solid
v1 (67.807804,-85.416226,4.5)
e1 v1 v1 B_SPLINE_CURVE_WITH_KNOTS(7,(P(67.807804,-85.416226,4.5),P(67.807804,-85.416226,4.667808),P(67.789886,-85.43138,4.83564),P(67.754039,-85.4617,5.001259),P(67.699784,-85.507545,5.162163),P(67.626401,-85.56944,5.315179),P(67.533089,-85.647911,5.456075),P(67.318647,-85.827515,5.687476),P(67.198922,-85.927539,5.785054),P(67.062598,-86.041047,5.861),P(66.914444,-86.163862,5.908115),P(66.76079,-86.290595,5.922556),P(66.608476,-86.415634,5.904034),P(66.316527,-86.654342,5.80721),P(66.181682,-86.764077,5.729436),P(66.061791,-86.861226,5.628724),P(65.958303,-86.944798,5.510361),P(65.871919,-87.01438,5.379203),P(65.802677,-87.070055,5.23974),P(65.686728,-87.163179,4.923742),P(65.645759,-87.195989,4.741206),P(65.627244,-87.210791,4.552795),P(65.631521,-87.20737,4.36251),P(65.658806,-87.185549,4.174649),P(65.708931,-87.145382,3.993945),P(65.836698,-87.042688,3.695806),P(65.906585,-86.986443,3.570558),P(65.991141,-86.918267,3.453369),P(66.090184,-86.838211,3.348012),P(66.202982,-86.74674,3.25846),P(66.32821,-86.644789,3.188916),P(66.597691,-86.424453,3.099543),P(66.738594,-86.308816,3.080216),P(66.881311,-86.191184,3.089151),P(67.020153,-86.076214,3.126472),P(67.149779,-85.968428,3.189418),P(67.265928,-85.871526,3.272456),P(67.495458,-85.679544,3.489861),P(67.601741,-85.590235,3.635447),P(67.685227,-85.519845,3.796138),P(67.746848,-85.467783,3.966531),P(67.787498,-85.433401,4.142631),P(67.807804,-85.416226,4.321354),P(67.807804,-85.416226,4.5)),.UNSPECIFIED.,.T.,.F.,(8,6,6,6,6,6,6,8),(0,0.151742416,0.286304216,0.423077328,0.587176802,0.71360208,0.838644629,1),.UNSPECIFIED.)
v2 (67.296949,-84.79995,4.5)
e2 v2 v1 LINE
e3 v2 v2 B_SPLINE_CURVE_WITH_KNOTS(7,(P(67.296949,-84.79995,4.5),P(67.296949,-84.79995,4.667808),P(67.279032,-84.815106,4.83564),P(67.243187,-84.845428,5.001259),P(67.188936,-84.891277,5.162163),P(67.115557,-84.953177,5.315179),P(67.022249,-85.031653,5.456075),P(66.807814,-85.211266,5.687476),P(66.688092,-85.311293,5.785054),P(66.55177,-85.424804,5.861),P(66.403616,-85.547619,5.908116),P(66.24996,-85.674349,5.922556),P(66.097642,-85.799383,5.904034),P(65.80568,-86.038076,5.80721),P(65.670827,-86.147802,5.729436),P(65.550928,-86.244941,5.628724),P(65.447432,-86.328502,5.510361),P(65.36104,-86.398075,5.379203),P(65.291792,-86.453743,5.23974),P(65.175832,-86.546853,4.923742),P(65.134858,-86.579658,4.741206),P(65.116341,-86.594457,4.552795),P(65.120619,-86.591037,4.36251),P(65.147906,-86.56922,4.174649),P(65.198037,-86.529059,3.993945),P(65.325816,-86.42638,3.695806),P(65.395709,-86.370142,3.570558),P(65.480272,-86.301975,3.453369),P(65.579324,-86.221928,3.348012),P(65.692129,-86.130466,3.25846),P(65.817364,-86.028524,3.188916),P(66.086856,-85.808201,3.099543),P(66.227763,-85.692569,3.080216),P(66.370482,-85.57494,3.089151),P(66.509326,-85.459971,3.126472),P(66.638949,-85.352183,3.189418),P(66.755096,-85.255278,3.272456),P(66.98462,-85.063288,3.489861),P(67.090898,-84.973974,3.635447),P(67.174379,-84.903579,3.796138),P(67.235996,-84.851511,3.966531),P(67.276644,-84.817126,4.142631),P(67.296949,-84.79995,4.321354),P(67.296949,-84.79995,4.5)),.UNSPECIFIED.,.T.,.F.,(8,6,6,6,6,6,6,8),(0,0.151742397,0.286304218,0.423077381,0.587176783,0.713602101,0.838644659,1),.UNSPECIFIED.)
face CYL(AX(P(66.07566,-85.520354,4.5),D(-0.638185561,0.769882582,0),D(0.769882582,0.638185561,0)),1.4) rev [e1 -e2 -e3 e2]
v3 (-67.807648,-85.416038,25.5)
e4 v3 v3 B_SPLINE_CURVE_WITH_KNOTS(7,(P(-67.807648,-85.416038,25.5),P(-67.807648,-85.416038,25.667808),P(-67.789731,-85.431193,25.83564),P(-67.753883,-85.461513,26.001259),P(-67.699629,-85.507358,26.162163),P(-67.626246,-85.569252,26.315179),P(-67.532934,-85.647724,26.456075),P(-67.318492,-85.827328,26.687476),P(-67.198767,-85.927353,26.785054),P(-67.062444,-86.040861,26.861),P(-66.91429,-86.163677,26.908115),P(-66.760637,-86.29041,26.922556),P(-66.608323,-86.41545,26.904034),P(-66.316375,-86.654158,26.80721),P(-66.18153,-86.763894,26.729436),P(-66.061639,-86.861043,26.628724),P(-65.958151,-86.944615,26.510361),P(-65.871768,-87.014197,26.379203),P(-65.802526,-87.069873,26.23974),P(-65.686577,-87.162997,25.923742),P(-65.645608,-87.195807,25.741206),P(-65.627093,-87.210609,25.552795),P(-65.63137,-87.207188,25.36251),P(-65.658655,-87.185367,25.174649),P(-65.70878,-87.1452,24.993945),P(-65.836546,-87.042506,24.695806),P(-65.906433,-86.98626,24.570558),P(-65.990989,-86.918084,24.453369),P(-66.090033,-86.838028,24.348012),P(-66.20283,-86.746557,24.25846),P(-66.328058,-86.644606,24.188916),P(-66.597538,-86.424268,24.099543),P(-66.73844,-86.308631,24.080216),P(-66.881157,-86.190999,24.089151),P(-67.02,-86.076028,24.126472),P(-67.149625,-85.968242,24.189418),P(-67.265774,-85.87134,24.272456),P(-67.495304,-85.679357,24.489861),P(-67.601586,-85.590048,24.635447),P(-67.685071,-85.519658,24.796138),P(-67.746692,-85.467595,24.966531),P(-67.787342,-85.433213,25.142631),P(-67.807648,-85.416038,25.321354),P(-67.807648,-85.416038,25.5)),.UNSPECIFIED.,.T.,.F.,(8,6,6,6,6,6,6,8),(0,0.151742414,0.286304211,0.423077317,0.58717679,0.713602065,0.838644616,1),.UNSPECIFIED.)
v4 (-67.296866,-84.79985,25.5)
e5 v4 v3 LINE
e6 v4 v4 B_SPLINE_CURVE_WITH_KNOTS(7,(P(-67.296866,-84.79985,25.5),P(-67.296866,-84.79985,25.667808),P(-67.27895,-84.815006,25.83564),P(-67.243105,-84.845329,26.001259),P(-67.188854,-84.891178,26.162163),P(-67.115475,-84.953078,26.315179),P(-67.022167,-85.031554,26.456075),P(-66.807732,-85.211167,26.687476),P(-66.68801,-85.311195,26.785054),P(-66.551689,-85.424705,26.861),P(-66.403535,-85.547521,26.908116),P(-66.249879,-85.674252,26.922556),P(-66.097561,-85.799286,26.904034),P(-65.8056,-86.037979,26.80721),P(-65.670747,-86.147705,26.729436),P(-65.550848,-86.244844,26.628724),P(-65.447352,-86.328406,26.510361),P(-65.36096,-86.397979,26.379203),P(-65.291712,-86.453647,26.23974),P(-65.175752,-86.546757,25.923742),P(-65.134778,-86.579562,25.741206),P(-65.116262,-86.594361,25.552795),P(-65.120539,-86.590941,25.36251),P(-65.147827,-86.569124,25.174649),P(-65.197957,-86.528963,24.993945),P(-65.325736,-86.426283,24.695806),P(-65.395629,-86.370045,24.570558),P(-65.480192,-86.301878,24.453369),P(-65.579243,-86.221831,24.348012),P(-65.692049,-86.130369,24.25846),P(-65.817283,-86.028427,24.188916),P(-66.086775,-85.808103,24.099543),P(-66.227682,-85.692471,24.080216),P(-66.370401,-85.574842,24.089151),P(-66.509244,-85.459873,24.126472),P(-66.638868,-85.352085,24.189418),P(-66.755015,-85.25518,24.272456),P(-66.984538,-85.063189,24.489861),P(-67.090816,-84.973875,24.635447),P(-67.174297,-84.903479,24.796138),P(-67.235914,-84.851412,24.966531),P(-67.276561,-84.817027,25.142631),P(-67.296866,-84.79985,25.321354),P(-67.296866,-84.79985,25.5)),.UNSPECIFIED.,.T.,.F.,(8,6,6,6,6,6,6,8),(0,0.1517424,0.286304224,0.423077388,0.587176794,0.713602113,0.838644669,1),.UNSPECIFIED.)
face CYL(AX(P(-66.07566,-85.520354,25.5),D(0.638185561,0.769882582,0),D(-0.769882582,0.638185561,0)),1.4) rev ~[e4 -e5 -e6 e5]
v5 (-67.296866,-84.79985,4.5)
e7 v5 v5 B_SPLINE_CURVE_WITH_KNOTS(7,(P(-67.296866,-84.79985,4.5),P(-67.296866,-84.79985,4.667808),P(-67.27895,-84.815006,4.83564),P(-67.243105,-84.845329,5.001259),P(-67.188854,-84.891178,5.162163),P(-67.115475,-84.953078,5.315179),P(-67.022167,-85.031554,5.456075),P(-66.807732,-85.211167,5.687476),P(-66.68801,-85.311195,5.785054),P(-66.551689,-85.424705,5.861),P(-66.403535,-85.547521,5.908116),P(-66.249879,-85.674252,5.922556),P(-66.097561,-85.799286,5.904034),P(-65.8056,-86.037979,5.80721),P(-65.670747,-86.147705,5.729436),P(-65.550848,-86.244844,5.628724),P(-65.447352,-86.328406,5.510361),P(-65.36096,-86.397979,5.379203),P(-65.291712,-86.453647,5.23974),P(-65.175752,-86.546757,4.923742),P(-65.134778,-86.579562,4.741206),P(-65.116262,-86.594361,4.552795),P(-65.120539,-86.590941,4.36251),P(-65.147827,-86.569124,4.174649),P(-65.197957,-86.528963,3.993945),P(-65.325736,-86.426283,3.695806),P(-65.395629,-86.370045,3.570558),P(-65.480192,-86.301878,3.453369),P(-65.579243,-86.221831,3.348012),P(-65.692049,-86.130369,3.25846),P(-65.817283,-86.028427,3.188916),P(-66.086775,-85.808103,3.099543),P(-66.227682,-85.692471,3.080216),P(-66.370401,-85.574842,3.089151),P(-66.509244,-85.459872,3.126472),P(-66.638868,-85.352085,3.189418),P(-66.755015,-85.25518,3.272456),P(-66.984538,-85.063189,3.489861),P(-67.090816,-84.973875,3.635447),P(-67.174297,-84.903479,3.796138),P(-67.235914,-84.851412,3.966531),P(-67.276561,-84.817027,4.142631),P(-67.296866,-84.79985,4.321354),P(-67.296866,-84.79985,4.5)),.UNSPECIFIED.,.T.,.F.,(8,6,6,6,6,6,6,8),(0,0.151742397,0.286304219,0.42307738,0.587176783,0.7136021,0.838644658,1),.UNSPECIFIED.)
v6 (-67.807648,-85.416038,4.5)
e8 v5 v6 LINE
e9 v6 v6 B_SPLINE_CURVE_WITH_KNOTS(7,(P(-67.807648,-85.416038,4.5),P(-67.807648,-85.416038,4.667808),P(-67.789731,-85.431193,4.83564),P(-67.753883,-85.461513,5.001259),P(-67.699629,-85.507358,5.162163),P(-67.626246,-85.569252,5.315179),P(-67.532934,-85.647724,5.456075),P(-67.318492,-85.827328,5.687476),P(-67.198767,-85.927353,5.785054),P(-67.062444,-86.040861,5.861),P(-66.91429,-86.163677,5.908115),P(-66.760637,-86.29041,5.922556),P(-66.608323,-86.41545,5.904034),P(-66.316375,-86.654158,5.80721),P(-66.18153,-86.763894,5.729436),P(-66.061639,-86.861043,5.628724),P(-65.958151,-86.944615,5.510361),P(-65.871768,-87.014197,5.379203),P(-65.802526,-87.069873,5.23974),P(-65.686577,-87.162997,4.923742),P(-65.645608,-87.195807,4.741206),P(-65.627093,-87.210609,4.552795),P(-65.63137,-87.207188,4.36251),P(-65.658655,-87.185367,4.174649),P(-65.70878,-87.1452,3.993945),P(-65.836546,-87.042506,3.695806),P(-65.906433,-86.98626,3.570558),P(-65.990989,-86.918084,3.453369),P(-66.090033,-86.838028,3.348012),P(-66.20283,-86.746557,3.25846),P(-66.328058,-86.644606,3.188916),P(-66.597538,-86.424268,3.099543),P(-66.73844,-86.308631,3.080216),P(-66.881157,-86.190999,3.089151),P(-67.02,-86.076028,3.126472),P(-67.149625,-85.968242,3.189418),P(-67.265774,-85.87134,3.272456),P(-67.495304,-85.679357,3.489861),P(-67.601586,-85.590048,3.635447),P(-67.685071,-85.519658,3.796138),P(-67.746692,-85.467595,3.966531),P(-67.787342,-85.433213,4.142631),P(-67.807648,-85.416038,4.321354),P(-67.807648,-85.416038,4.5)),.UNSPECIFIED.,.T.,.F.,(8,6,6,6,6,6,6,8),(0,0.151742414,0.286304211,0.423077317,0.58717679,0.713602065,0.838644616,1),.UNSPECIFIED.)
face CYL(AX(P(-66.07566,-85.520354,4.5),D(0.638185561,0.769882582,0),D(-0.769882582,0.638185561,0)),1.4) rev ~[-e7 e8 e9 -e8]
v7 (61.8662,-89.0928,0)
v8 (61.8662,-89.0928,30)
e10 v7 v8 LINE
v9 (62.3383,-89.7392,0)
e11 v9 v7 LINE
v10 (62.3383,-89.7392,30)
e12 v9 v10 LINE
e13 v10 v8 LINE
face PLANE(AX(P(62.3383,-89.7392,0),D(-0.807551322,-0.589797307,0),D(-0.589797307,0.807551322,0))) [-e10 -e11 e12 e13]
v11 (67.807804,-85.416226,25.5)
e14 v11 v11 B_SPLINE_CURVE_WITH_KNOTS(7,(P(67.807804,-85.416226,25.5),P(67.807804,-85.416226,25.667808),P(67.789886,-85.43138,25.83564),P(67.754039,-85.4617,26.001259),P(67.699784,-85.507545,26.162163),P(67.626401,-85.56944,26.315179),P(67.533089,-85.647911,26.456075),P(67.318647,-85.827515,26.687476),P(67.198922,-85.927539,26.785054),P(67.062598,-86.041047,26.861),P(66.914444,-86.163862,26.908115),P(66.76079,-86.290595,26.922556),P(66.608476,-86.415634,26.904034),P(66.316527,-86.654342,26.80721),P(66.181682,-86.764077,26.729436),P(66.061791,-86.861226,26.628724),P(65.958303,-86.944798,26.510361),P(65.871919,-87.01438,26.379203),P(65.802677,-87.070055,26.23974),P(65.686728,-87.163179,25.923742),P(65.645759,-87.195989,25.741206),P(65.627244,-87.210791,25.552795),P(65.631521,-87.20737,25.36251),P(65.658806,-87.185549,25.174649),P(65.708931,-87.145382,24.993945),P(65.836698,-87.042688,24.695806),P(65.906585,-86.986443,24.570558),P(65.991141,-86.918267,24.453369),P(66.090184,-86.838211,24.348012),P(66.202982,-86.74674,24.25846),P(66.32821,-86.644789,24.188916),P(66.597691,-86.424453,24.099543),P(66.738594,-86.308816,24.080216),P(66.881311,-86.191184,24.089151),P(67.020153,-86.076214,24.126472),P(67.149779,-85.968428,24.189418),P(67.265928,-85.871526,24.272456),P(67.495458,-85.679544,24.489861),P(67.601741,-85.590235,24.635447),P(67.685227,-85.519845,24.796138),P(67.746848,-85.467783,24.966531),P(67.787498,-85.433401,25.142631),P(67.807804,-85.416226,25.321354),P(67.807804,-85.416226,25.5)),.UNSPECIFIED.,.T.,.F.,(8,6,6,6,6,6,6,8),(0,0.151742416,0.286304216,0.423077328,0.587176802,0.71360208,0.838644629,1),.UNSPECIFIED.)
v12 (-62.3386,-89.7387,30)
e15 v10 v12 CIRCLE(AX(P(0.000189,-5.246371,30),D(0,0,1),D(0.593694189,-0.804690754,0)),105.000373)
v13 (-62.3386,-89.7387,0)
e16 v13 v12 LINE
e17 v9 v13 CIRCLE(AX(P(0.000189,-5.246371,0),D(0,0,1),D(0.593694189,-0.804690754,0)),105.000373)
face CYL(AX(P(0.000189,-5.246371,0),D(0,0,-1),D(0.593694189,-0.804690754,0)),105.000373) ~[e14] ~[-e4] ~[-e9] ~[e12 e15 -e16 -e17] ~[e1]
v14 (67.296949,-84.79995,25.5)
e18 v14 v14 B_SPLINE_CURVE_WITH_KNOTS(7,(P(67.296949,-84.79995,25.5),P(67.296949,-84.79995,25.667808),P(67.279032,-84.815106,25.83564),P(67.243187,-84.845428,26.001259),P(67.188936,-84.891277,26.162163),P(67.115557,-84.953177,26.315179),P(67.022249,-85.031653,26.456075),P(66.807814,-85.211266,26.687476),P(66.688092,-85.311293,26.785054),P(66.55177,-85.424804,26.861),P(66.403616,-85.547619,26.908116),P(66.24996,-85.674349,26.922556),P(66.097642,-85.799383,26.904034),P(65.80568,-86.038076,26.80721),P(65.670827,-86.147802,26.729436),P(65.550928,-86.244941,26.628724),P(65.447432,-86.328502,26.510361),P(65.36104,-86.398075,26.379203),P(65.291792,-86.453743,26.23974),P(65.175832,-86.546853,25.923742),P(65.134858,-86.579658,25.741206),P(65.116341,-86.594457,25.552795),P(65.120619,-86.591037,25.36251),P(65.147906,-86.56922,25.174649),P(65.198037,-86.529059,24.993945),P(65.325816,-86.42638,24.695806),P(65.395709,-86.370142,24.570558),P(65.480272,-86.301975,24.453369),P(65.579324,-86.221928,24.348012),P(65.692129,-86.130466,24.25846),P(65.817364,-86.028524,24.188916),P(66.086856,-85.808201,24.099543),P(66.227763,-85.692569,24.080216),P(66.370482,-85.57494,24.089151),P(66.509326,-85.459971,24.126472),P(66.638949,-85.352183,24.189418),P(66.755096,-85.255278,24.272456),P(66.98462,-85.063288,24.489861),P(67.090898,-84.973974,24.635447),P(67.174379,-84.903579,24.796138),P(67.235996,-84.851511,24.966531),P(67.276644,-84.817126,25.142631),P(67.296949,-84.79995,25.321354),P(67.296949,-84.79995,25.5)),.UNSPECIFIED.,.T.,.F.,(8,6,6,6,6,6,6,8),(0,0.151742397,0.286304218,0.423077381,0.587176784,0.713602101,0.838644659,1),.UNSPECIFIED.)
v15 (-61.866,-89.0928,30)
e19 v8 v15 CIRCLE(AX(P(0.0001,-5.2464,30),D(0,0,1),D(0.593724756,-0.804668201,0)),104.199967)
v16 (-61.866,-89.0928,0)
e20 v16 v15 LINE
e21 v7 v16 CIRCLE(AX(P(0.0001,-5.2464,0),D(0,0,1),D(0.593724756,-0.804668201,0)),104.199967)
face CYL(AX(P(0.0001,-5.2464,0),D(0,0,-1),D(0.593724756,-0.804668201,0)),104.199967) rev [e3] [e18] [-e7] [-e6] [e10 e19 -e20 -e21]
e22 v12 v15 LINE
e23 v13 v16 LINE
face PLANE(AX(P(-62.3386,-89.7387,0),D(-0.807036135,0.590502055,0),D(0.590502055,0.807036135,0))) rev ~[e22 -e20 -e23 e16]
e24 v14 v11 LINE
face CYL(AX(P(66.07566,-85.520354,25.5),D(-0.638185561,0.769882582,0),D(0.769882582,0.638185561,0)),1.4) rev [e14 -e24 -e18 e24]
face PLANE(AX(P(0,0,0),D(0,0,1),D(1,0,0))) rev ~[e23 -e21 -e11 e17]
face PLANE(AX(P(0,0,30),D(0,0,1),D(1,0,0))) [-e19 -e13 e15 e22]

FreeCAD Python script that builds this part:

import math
import FreeCAD as App
import Part
import Sketcher
from FreeCAD import Vector
Q = App.Units.Quantity

doc = App.newDocument("Part")
body = doc.addObject("PartDesign::Body", "Body")

# Sketch on XY plane
sketch1 = body.newObject("Sketcher::SketchObject", "Sketch")
sketch1.AttachmentSupport = (doc.getObject("XY_Plane"), [""])
sketch1.MapMode = "FlatFace"
sketch1.addGeometry(Part.LineSegment(Vector(61.9, -89.1, 0), Vector(62.3, -89.7, 0)), False)
sketch1.addGeometry(Part.ArcOfCircle(Part.Circle(Vector(0, -5.2, 0), Vector(0, 0, 1), 105), math.radians(-54), math.radians(234)), False)
sketch1.addGeometry(Part.LineSegment(Vector(-62.3, -89.7, 0), Vector(-61.9, -89.1, 0)), False)
sketch1.addGeometry(Part.ArcOfCircle(Part.Circle(Vector(0, -5.2, 0), Vector(0, 0, 1), 104.2), math.radians(-54), math.radians(234)), False)
sketch1.addConstraint(Sketcher.Constraint("Coincident", 0, 2, 1, 1))
sketch1.addConstraint(Sketcher.Constraint("Coincident", 1, 2, 2, 1))
sketch1.addConstraint(Sketcher.Constraint("Coincident", 2, 2, 3, 2))
sketch1.addConstraint(Sketcher.Constraint("Coincident", 3, 1, 0, 1))
sketch1.addConstraint(Sketcher.Constraint("Coincident", 3, 3, 1, 3))
sketch1.addConstraint(Sketcher.Constraint("Symmetric", 2, 2, 3, 1, -2))
sketch1.addConstraint(Sketcher.Constraint("Equal", 0, 2))
sketch1.addConstraint(Sketcher.Constraint("Radius", 3, Q("104.2 mm")))
sketch1.addConstraint(Sketcher.Constraint("Radius", 1, Q("105.0004 mm")))
sketch1.addConstraint(Sketcher.Constraint("DistanceX", 2, 2, -1, 1, Q("61.866 mm")))
sketch1.addConstraint(Sketcher.Constraint("DistanceX", 1, 2, 0, 2, Q("124.677 mm")))
sketch1.addConstraint(Sketcher.Constraint("DistanceY", 1, 3, -1, 1, Q("5.2464 mm")))
pad1 = body.newObject("PartDesign::Pad", "Pad")
pad1.Profile = sketch1
pad1.Length = 30

# Sketch on an angled plane
sketch2 = body.newObject("Sketcher::SketchObject", "Sketch001")
sketch2.Placement = App.Placement(Vector(61.0727, -89.6701, 0), App.Rotation(Vector(0.769882582, 0.638185561, 0), Vector(0, 0, 1), Vector(0.638185561, -0.769882582, 0), "ZXY"))
sketch2.addGeometry(Part.Circle(Vector(6.5, 25.5, 0), Vector(0, 0, 1), 1.4), False)
sketch2.addGeometry(Part.Circle(Vector(6.5, 4.5, 0), Vector(0, 0, 1), 1.4), False)
sketch2.addConstraint(Sketcher.Constraint("Equal", 0, 1))
sketch2.addConstraint(Sketcher.Constraint("Vertical", 0, 3, 1, 3))
sketch2.addConstraint(Sketcher.Constraint("Diameter", 0, Q("2.8 mm")))
sketch2.addConstraint(Sketcher.Constraint("DistanceY", 1, 3, 0, 3, Q("21 mm")))
sketch2.addConstraint(Sketcher.Constraint("DistanceX", -1, 1, 0, 3, Q("6.5 mm")))
sketch2.addConstraint(Sketcher.Constraint("DistanceY", -1, 1, 0, 3, Q("25.5 mm")))
pocket1 = body.newObject("PartDesign::Pocket", "Pocket")
pocket1.Profile = sketch2
pocket1.Length = 30
pocket1.Reversed = True
doc.recompute()

mirrored = body.newObject("PartDesign::Mirrored", "Mirrored")
mirrored.Originals = [pocket1]
mirrored.MirrorPlane = (doc.getObject("YZ_Plane"), [""])
body.Tip = mirrored

doc.recompute()
